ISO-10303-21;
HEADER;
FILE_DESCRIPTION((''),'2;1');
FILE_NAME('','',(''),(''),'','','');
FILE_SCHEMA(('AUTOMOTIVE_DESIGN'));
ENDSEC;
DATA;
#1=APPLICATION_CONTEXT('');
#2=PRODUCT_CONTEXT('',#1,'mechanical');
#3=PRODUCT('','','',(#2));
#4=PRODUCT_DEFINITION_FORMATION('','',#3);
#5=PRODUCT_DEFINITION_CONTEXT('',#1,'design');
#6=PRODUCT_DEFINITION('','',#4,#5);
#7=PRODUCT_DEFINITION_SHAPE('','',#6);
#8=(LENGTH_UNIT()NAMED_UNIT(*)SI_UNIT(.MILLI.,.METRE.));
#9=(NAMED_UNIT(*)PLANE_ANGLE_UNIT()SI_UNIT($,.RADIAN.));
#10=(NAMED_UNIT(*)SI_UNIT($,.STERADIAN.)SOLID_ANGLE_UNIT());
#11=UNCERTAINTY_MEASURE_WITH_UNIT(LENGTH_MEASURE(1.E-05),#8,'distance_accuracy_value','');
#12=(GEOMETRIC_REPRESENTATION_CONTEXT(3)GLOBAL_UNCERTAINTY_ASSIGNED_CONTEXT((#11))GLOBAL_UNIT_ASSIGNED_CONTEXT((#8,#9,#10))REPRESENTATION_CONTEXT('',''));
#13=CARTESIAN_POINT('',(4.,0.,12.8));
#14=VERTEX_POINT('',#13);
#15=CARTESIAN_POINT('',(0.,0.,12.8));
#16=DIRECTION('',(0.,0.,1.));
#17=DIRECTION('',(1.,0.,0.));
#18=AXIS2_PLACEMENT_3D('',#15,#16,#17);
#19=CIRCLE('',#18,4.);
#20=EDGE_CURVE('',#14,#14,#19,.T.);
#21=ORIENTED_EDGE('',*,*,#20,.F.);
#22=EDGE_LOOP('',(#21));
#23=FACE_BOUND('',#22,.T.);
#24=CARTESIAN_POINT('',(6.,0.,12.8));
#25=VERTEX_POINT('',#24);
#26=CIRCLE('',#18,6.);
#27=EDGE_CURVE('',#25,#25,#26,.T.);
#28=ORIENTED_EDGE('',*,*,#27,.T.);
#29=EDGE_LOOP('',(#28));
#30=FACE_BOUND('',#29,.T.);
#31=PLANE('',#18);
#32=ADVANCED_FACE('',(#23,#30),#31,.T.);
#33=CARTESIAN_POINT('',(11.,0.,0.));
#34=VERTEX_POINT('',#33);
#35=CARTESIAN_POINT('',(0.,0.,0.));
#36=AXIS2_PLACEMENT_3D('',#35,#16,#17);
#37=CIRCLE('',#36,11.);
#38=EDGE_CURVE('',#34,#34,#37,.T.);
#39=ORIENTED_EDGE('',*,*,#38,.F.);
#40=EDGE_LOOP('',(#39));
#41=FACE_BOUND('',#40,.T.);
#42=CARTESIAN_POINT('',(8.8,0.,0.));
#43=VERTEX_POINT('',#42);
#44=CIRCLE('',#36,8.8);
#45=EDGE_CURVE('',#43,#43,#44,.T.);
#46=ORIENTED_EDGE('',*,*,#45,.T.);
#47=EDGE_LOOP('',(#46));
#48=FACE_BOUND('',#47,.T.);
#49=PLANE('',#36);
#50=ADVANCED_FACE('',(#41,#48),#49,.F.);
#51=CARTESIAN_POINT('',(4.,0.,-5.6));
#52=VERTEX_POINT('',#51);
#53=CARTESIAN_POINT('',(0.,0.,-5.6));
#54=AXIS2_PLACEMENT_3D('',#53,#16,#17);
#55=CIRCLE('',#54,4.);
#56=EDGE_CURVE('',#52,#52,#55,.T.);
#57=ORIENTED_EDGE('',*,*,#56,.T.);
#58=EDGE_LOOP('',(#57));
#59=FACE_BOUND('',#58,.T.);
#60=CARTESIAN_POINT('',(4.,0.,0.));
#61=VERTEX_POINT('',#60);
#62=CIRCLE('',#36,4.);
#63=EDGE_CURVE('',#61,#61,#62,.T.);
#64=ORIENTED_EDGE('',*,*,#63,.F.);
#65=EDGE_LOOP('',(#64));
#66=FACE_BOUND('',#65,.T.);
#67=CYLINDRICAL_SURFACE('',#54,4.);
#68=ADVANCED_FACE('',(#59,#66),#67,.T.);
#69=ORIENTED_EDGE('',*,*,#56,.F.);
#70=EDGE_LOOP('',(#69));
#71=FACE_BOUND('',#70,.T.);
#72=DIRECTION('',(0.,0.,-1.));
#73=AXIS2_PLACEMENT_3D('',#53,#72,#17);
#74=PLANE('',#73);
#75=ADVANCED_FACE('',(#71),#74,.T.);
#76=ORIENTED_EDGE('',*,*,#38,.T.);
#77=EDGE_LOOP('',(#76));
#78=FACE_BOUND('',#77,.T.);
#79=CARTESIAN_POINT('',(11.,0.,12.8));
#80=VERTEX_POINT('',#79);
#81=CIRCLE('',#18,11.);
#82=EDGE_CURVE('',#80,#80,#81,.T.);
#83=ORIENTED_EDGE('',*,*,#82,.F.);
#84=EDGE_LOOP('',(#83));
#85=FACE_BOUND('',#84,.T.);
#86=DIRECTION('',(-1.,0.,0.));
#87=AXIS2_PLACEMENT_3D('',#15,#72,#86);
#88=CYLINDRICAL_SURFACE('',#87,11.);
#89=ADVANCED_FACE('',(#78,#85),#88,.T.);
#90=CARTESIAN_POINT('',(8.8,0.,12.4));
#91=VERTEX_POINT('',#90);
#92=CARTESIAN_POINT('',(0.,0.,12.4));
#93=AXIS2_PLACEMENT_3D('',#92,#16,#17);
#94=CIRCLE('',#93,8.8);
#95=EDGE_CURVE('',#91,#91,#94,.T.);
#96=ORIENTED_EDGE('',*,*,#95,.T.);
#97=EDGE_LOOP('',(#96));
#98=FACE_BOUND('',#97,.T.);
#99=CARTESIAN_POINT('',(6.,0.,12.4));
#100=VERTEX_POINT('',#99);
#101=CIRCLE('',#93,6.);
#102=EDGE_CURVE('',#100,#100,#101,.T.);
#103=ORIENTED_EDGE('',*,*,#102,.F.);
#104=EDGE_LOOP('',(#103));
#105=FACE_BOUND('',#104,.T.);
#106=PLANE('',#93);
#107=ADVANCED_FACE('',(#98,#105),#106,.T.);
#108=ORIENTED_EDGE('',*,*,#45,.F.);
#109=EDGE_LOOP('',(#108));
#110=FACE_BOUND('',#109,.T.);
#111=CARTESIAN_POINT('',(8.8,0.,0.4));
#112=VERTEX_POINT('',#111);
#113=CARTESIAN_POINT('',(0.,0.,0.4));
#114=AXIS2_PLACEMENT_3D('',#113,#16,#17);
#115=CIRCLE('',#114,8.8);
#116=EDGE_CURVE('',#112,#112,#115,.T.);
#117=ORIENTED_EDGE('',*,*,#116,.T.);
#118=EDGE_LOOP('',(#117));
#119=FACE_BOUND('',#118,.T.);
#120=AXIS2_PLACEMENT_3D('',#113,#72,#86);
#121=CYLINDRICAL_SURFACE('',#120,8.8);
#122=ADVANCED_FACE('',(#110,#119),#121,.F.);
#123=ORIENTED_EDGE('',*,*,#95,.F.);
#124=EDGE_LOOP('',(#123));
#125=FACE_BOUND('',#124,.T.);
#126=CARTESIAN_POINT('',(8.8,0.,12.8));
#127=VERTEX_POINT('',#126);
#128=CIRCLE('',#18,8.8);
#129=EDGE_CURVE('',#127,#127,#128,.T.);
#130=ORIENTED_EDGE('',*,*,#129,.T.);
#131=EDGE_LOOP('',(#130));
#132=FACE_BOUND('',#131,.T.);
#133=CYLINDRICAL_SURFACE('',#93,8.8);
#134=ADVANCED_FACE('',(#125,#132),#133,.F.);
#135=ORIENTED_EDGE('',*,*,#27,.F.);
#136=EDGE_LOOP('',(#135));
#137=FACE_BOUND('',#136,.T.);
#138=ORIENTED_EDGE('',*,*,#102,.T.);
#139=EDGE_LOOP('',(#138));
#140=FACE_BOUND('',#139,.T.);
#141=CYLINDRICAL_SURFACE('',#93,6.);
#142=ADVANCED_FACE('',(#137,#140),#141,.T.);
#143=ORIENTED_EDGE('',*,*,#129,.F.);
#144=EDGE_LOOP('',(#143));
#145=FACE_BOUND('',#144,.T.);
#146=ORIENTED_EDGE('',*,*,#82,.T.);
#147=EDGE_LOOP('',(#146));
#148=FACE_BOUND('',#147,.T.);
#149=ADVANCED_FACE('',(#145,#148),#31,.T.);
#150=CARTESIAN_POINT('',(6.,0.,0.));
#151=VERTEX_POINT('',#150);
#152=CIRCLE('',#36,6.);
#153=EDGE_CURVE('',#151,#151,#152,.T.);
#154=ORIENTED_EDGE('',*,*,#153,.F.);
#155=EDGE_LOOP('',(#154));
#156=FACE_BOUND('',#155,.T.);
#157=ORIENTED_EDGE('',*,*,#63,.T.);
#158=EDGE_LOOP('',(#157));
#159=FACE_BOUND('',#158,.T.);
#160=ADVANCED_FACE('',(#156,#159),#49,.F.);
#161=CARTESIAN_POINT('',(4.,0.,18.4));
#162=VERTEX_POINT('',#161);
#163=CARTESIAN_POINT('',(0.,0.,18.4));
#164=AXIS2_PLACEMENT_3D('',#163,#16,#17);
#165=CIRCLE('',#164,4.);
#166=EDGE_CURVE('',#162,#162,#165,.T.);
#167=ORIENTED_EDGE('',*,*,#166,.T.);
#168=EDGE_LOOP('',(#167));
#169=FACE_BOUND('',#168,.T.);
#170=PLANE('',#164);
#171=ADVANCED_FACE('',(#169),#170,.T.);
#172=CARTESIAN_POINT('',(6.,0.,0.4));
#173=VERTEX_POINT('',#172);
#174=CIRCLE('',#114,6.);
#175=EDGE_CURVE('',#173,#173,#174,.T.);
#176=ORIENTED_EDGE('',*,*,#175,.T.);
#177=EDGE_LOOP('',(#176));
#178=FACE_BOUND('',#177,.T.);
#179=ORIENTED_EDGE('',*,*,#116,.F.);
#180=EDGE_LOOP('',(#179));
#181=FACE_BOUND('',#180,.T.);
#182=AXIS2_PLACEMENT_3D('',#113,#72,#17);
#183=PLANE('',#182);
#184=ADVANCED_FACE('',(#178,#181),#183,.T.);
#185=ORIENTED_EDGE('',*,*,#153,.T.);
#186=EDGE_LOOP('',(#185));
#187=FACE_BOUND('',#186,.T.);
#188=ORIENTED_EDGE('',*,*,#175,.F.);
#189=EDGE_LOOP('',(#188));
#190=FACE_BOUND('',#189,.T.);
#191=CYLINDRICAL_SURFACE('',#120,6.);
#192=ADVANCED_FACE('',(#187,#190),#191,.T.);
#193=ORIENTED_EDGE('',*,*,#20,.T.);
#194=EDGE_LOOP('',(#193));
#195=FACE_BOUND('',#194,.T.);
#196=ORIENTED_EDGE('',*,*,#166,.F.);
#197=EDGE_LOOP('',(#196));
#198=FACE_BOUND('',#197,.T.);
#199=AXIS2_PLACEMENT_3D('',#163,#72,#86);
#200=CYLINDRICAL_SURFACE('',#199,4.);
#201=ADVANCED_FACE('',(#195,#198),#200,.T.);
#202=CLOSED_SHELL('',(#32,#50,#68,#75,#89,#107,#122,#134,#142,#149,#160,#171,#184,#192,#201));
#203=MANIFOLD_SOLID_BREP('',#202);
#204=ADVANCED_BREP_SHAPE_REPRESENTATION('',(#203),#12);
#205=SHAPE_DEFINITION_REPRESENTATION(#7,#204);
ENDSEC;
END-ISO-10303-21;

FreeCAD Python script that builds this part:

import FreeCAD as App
import Part
import Sketcher

doc = App.newDocument("Part")
body = doc.addObject("PartDesign::Body", "Body")

sketch1 = body.newObject("Sketcher::SketchObject", "Sketch")
sketch1.AttachmentSupport = (doc.getObject("XY_Plane"), [""])
sketch1.MapMode = "FlatFace"
sketch1.addGeometry(Part.Circle(App.Vector(0, 0, 0), App.Vector(0, 0, 1), 11), False)
sketch1.addConstraint([
    Sketcher.Constraint("Coincident", 0, 3, -1, 1),
    Sketcher.Constraint("Diameter", 0, 22.0),
])
pad1 = body.newObject("PartDesign::Pad", "Pad")
pad1.Profile = sketch1
pad1.Length = 12.8

sketch2 = body.newObject("Sketcher::SketchObject", "Sketch001")
sketch2.AttachmentSupport = (doc.getObject("XY_Plane"), [""])
sketch2.MapMode = "FlatFace"
sketch2.AttachmentOffset = App.Placement(App.Vector(0, 0, 12.8), App.Rotation())
sketch2.addGeometry([
    Part.Circle(App.Vector(0, 0, 0), App.Vector(0, 0, 1), 8.8),
    Part.Circle(App.Vector(0, 0, 0), App.Vector(0, 0, 1), 6),
], False)
sketch2.addConstraint([
    Sketcher.Constraint("Coincident", 0, 3, -1, 1),
    Sketcher.Constraint("Coincident", 1, 3, -1, 1),
    Sketcher.Constraint("Diameter", 1, 12.0),
    Sketcher.Constraint("Diameter", 0, 17.6),
])
pocket1 = body.newObject("PartDesign::Pocket", "Pocket")
pocket1.Profile = sketch2
pocket1.Length = 0.4

sketch3 = body.newObject("Sketcher::SketchObject", "Sketch002")
sketch3.AttachmentSupport = (doc.getObject("XY_Plane"), [""])
sketch3.MapMode = "FlatFace"
sketch3.AttachmentOffset = App.Placement(App.Vector(0, 0, 12.8), App.Rotation())
sketch3.addGeometry(Part.Circle(App.Vector(0, 0, 0), App.Vector(0, 0, 1), 4), False)
sketch3.addConstraint([
    Sketcher.Constraint("Coincident", 0, 3, -1, 1),
    Sketcher.Constraint("Diameter", 0, 8.0),
])
pad2 = body.newObject("PartDesign::Pad", "Pad001")
pad2.Profile = sketch3
pad2.Length = 5.6
doc.recompute()

datumplane = body.newObject("PartDesign::Plane", "DatumPlane")
datumplane.AttachmentSupport = (doc.getObject("XY_Plane"), [""])
datumplane.MapMode = "FlatFace"
datumplane.AttachmentOffset = App.Placement(App.Vector(0, 0, 6.4), App.Rotation())
mirrored = body.newObject("PartDesign::Mirrored", "Mirrored")
mirrored.Originals = [pocket1, pad2]
mirrored.MirrorPlane = (datumplane, [""])
body.Tip = mirrored

doc.recompute()
